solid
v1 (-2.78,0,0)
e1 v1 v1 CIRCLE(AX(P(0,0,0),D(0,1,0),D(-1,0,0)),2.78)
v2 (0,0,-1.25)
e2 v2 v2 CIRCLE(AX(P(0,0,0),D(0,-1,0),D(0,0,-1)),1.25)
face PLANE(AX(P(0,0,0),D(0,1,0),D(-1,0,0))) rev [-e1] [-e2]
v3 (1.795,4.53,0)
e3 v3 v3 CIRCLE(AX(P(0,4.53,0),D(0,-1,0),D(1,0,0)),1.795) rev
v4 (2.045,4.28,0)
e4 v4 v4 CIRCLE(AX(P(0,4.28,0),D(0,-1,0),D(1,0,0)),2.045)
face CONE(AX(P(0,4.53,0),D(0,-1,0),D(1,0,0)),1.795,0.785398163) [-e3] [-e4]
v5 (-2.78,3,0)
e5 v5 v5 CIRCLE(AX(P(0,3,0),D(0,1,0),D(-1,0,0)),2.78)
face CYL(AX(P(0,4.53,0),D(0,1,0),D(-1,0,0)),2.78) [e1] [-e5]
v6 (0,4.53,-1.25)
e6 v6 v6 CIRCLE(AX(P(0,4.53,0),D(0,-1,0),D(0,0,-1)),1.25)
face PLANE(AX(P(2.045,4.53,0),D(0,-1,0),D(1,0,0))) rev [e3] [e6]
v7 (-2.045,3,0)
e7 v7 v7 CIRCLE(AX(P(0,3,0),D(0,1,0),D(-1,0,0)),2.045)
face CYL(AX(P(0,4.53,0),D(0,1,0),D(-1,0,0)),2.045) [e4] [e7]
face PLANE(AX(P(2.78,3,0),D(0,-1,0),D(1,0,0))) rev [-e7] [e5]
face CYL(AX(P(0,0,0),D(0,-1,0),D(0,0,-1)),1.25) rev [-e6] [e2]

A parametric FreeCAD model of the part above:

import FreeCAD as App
import Part
import Sketcher
Q = App.Units.Quantity


def edges_at(feature, points):
    """Names of the edges that pass closest to the given points."""
    edges = feature.Shape.Edges
    near = lambda p: min(range(len(edges)), key=lambda i: edges[i].distToShape(Part.Vertex(*p))[0])
    return sorted({f"Edge{near(p) + 1}" for p in points})

doc = App.newDocument("Part")
body = doc.addObject("PartDesign::Body", "Body")

sketch1 = body.newObject("Sketcher::SketchObject", "Sketch")
sketch1.AttachmentSupport = (doc.getObject("XY_Plane"), [""])
sketch1.MapMode = "FlatFace"
sketch1.addGeometry(Part.LineSegment(App.Vector(0, 0, 0), App.Vector(2.78, 0, 0)), False)
sketch1.addGeometry(Part.LineSegment(App.Vector(2.78, 0, 0), App.Vector(2.78, 3, 0)), False)
sketch1.addGeometry(Part.LineSegment(App.Vector(2.78, 3, 0), App.Vector(2.045, 3, 0)), False)
sketch1.addGeometry(Part.LineSegment(App.Vector(2.045, 3, 0), App.Vector(2.045, 4.53, 0)), False)
sketch1.addGeometry(Part.LineSegment(App.Vector(2.045, 4.53, 0), App.Vector(0, 4.53, 0)), False)
sketch1.addGeometry(Part.LineSegment(App.Vector(0, 4.53, 0), App.Vector(0, 0, 0)), False)
sketch1.addConstraint(Sketcher.Constraint("Coincident", 0, 2, 1, 1))
sketch1.addConstraint(Sketcher.Constraint("Coincident", 1, 2, 2, 1))
sketch1.addConstraint(Sketcher.Constraint("Coincident", 2, 2, 3, 1))
sketch1.addConstraint(Sketcher.Constraint("Coincident", 3, 2, 4, 1))
sketch1.addConstraint(Sketcher.Constraint("Coincident", 4, 2, 5, 1))
sketch1.addConstraint(Sketcher.Constraint("Coincident", 5, 2, 0, 1))
sketch1.addConstraint(Sketcher.Constraint("Horizontal", 0))
sketch1.addConstraint(Sketcher.Constraint("Vertical", 1))
sketch1.addConstraint(Sketcher.Constraint("Horizontal", 2))
sketch1.addConstraint(Sketcher.Constraint("Vertical", 3))
sketch1.addConstraint(Sketcher.Constraint("Horizontal", 4))
sketch1.addConstraint(Sketcher.Constraint("Vertical", 5))
sketch1.addConstraint(Sketcher.Constraint("Coincident", 5, 2, -1, 1))
sketch1.addConstraint(Sketcher.Constraint("DistanceY", 1, 1, 1, 2, Q("3 mm")))
sketch1.addConstraint(Sketcher.Constraint("DistanceX", 0, 1, 0, 2, Q("2.78 mm")))
sketch1.addConstraint(Sketcher.Constraint("DistanceY", 3, 1, 3, 2, Q("1.53 mm")))
sketch1.addConstraint(Sketcher.Constraint("DistanceX", 2, 2, 2, 1, Q("0.735 mm")))
revolution = body.newObject("PartDesign::Revolution", "Revolution")
revolution.Profile = sketch1
revolution.ReferenceAxis = (sketch1, ["V_Axis"])
revolution.Angle = 360
doc.recompute()

chamfer = body.newObject("PartDesign::Chamfer", "Chamfer")
chamfer.Base = (revolution, edges_at(revolution, [(2.045, 4.53, 0)]))
chamfer.Size = 0.25

sketch2 = body.newObject("Sketcher::SketchObject", "Sketch001")
sketch2.AttachmentSupport = (doc.getObject("XZ_Plane"), [""])
sketch2.MapMode = "FlatFace"
sketch2.addGeometry(Part.Circle(App.Vector(0, 0, 0), App.Vector(0, 0, 1), 1.25), False)
sketch2.addConstraint(Sketcher.Constraint("Coincident", 0, 3, -1, 1))
sketch2.addConstraint(Sketcher.Constraint("Diameter", 0, Q("2.5 mm")))
doc.recompute()
hole = body.newObject("PartDesign::Hole", "Hole")
hole.Profile = sketch2
hole.ThreadType = "None"
hole.Diameter = 2.5
hole.DepthType = "ThroughAll"

doc.recompute()
